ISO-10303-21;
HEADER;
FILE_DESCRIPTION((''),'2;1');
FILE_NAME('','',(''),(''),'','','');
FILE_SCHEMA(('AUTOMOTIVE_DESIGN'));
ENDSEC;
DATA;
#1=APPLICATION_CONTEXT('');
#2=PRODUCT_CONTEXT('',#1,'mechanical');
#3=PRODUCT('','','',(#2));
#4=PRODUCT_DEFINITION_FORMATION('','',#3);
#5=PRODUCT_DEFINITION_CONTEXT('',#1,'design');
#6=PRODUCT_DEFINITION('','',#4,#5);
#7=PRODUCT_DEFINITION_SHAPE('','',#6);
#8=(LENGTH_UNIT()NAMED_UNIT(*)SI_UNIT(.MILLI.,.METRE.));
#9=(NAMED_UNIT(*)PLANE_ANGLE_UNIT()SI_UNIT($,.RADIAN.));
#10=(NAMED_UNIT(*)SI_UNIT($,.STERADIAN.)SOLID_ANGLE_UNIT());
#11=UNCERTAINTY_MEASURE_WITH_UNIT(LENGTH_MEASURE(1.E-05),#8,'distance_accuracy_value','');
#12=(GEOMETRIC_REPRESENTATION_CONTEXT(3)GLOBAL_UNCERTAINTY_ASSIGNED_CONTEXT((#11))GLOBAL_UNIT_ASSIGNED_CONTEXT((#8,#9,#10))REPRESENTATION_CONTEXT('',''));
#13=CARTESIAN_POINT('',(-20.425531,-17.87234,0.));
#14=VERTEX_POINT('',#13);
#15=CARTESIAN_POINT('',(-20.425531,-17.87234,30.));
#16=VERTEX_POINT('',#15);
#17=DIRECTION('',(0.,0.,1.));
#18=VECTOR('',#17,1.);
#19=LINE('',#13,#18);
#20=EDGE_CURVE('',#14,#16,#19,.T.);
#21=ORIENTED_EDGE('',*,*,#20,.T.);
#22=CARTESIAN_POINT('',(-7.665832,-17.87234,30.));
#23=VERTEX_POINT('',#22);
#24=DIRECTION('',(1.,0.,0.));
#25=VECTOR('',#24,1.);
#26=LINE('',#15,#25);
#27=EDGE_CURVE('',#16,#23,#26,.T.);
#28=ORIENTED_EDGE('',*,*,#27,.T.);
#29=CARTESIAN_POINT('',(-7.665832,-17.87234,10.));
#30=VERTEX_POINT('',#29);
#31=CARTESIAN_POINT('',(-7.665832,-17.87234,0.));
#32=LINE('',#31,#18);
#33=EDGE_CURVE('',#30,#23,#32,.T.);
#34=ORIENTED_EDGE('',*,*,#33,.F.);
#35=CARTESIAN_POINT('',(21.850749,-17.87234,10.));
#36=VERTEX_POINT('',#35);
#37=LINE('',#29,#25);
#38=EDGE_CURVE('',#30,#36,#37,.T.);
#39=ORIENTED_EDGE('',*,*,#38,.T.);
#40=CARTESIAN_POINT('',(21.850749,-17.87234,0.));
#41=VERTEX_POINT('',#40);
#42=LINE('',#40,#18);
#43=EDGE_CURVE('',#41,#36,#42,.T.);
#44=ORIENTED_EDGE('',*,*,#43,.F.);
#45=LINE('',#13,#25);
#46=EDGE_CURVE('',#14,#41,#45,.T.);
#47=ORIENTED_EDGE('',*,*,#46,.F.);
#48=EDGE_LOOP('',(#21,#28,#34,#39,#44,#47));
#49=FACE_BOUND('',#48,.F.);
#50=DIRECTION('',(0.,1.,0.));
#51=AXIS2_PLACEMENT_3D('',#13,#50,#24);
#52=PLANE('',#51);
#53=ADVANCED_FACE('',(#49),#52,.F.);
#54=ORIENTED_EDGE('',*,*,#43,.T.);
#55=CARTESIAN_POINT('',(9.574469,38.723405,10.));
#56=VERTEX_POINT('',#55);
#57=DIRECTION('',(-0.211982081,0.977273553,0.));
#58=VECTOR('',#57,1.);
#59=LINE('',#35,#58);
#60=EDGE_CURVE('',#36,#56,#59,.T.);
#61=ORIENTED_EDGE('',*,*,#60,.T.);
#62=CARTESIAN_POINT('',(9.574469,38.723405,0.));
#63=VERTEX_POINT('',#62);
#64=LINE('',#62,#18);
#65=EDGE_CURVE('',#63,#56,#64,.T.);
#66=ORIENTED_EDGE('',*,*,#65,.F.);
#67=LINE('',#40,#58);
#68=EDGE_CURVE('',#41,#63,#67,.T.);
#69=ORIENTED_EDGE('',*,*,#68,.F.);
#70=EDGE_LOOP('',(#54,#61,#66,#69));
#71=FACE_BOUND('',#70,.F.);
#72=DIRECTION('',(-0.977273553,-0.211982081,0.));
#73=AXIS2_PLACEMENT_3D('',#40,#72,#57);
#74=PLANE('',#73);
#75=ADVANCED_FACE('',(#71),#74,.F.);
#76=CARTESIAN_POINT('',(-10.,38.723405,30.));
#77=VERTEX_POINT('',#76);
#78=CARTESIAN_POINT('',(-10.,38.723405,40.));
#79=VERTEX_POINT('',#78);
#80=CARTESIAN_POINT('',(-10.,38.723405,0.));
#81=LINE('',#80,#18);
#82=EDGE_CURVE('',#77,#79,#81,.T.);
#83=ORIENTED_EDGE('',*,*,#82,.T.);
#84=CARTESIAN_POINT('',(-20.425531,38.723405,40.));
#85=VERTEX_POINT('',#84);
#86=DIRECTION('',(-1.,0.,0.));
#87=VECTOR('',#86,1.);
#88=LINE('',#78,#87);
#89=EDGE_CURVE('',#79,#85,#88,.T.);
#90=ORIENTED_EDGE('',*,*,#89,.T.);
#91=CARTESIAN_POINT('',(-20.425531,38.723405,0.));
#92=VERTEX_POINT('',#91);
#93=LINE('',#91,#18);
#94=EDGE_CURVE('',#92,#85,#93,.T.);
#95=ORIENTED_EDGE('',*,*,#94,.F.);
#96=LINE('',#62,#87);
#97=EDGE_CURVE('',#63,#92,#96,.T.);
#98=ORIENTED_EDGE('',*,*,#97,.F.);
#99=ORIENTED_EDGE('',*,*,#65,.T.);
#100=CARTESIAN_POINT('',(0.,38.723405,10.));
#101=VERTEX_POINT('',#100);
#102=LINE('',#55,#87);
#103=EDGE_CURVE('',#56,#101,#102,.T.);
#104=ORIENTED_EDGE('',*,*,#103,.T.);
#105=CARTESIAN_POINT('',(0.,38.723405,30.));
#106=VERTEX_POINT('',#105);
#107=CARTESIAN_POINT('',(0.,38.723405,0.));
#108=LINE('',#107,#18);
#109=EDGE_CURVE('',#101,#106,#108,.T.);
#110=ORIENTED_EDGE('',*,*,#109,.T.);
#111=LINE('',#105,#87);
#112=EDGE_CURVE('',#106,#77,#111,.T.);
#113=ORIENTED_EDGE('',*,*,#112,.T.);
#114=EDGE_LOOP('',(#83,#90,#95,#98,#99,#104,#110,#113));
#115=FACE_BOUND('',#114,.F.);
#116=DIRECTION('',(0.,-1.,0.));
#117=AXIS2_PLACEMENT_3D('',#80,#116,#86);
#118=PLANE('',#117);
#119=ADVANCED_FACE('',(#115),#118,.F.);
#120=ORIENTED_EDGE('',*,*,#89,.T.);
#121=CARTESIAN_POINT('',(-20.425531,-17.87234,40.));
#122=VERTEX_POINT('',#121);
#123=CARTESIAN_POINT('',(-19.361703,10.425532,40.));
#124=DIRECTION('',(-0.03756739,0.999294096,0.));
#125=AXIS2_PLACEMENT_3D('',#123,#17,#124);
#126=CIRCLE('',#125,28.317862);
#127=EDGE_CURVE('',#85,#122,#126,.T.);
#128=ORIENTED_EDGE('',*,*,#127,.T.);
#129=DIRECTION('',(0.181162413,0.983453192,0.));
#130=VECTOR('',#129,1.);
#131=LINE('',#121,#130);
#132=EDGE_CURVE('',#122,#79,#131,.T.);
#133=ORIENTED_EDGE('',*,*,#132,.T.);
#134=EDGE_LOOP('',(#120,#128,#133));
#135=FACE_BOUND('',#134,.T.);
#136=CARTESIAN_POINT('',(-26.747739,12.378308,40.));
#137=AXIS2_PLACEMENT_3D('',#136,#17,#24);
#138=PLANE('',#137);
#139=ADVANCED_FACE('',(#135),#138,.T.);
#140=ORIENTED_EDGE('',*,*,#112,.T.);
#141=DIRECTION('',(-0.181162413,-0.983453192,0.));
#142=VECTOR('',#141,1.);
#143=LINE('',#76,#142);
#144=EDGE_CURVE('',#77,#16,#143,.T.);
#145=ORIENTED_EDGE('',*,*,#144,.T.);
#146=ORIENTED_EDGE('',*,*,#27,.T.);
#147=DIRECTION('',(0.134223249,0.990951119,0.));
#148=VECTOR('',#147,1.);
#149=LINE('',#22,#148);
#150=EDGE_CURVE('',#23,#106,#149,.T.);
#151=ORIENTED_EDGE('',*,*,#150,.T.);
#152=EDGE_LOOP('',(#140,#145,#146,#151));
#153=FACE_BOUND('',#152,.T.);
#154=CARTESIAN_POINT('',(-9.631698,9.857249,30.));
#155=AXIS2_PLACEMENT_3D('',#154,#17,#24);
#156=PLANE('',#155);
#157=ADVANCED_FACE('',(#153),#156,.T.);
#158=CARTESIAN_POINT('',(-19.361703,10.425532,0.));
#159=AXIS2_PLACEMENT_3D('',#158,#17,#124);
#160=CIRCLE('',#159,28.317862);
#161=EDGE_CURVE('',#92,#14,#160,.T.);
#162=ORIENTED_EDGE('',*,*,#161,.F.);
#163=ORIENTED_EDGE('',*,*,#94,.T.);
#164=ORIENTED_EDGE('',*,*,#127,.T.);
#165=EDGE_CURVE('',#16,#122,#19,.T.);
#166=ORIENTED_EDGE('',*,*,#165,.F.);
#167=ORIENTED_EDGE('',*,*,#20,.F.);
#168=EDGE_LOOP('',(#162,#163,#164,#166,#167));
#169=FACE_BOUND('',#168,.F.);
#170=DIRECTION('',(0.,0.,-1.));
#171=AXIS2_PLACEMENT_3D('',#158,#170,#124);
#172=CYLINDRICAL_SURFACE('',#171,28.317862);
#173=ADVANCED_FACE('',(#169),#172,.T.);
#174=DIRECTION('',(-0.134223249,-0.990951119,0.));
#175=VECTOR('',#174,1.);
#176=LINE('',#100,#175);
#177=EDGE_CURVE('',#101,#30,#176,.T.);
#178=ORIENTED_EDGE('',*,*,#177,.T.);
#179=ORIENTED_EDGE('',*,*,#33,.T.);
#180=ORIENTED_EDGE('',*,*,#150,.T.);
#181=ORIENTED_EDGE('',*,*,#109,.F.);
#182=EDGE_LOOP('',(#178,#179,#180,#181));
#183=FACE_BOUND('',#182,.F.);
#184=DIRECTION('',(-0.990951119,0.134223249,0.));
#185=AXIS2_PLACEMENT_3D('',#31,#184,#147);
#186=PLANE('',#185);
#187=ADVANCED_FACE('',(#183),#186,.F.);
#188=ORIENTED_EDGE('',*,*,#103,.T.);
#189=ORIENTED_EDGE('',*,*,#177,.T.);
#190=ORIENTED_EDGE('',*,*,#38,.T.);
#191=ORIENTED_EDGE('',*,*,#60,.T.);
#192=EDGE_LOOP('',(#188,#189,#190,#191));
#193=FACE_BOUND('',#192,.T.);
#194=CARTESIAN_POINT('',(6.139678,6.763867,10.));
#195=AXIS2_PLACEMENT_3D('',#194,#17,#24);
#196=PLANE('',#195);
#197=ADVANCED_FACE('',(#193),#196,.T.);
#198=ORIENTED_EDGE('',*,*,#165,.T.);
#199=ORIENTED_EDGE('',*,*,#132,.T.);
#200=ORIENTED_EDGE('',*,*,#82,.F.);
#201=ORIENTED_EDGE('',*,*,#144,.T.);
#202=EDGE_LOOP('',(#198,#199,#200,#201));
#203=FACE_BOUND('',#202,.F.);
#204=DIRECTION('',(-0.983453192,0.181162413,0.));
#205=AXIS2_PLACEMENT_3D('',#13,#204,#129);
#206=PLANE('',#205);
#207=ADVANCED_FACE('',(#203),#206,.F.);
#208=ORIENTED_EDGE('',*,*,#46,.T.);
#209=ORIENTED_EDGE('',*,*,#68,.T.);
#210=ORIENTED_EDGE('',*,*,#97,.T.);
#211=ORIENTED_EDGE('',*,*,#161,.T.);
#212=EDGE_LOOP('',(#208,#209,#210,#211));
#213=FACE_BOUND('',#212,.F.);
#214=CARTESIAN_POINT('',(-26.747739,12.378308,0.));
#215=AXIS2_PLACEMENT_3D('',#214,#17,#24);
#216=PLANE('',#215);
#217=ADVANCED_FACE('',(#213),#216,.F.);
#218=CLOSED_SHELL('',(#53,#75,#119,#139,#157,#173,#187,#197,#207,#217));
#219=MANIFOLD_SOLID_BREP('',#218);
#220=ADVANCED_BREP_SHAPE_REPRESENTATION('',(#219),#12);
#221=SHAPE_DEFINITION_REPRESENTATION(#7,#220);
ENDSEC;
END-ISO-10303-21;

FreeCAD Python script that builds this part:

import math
import FreeCAD as App
import Part
import Sketcher
Q = App.Units.Quantity

doc = App.newDocument("Part")
body = doc.addObject("PartDesign::Body", "Body")

# Sketch on XY plane
sketch1 = doc.addObject("Sketcher::SketchObject", "Sketch")
body.addObject(sketch1)
sketch1.AttachmentSupport = (doc.XY_Plane, [""])
sketch1.MapMode = "FlatFace"
sketch1.addGeometry([
    Part.LineSegment(App.Vector(22, -18, 0), App.Vector(10, 39, 0)),
    Part.LineSegment(App.Vector(10, 39, 0), App.Vector(0, 39, 0)),
    Part.LineSegment(App.Vector(0, 39, 0), App.Vector(-8, -18, 0)),
    Part.LineSegment(App.Vector(-8, -18, 0), App.Vector(22, -18, 0)),
], False)
sketch1.addConstraint([
    Sketcher.Constraint("Coincident", 0, 2, 1, 1),
    Sketcher.Constraint("Coincident", 1, 2, 2, 1),
    Sketcher.Constraint("Coincident", 2, 2, 3, 1),
    Sketcher.Constraint("Coincident", 3, 2, 0, 1),
    Sketcher.Constraint("Horizontal", 1),
    Sketcher.Constraint("Horizontal", 3),
    Sketcher.Constraint("PointOnObject", 1, 2, -2),
    Sketcher.Constraint("DistanceX", 1, 2, 1, 1, Q("9.574469 mm")),
    Sketcher.Constraint("DistanceX", 3, 1, 3, 2, Q("29.516581 mm")),
    Sketcher.Constraint("DistanceX", 2, 2, 0, 2, Q("17.240301 mm")),
    Sketcher.Constraint("Distance", 2, Q("57.11255 mm")),
    Sketcher.Constraint("DistanceY", 2, 2, -1, 1, Q("17.87234 mm")),
])
pad1 = doc.addObject("PartDesign::Pad", "Pad")
body.addObject(pad1)
pad1.Profile = sketch1
pad1.Length = 10

# Sketch on XY plane
sketch2 = doc.addObject("Sketcher::SketchObject", "Sketch001")
body.addObject(sketch2)
sketch2.AttachmentSupport = (doc.XY_Plane, [""])
sketch2.MapMode = "FlatFace"
sketch2.addGeometry([
    Part.LineSegment(App.Vector(-8, -18, 0), App.Vector(0, 39, 0)),
    Part.LineSegment(App.Vector(0, 39, 0), App.Vector(-10, 39, 0)),
    Part.LineSegment(App.Vector(-10, 39, 0), App.Vector(-20, -18, 0)),
    Part.LineSegment(App.Vector(-20, -18, 0), App.Vector(-8, -18, 0)),
], False)
sketch2.addConstraint([
    Sketcher.Constraint("Coincident", 0, 2, 1, 1),
    Sketcher.Constraint("Coincident", 1, 2, 2, 1),
    Sketcher.Constraint("Coincident", 2, 2, 3, 1),
    Sketcher.Constraint("Coincident", 3, 2, 0, 1),
    Sketcher.Constraint("Horizontal", 1),
    Sketcher.Constraint("Horizontal", 3),
    Sketcher.Constraint("PointOnObject", 0, 2, -2),
    Sketcher.Constraint("DistanceX", 1, 2, 1, 1, Q("10 mm")),
    Sketcher.Constraint("DistanceX", 3, 1, 3, 2, Q("12.759699 mm")),
    Sketcher.Constraint("Distance", 0, Q("57.11255 mm")),
    Sketcher.Constraint("Distance", 2, Q("57.54798 mm")),
    Sketcher.Constraint("DistanceY", 2, 2, -1, 1, Q("17.87234 mm")),
])
pad2 = doc.addObject("PartDesign::Pad", "Pad001")
body.addObject(pad2)
pad2.Profile = sketch2
pad2.Length = 30

# Sketch on XY plane
sketch3 = doc.addObject("Sketcher::SketchObject", "Sketch002")
body.addObject(sketch3)
sketch3.AttachmentSupport = (doc.XY_Plane, [""])
sketch3.MapMode = "FlatFace"
sketch3.addGeometry([
    Part.LineSegment(App.Vector(-20, -18, 0), App.Vector(-10, 39, 0)),
    Part.LineSegment(App.Vector(-10, 39, 0), App.Vector(-20, 39, 0)),
    Part.ArcOfCircle(Part.Circle(App.Vector(-19, 10, 0), App.Vector(0, 0, 1), 28), math.radians(92), math.radians(268)),
], False)
sketch3.addConstraint([
    Sketcher.Constraint("Coincident", 0, 2, 1, 1),
    Sketcher.Constraint("Coincident", 1, 2, 2, 1),
    Sketcher.Constraint("Coincident", 2, 2, 0, 1),
    Sketcher.Constraint("Horizontal", 1),
    Sketcher.Constraint("Vertical", 1, 2, 2, 2),
    Sketcher.Constraint("DistanceX", 0, 2, -1, 1, Q("10 mm")),
    Sketcher.Constraint("Radius", 2, Q("28.317862 mm")),
    Sketcher.Constraint("DistanceX", 1, 2, 1, 1, Q("10.425531 mm")),
    Sketcher.Constraint("Distance", 0, Q("57.54798 mm")),
    Sketcher.Constraint("DistanceY", 2, 2, -1, 1, Q("17.87234 mm")),
])
pad3 = doc.addObject("PartDesign::Pad", "Pad002")
body.addObject(pad3)
pad3.Profile = sketch3
pad3.Length = 40

doc.recompute()
